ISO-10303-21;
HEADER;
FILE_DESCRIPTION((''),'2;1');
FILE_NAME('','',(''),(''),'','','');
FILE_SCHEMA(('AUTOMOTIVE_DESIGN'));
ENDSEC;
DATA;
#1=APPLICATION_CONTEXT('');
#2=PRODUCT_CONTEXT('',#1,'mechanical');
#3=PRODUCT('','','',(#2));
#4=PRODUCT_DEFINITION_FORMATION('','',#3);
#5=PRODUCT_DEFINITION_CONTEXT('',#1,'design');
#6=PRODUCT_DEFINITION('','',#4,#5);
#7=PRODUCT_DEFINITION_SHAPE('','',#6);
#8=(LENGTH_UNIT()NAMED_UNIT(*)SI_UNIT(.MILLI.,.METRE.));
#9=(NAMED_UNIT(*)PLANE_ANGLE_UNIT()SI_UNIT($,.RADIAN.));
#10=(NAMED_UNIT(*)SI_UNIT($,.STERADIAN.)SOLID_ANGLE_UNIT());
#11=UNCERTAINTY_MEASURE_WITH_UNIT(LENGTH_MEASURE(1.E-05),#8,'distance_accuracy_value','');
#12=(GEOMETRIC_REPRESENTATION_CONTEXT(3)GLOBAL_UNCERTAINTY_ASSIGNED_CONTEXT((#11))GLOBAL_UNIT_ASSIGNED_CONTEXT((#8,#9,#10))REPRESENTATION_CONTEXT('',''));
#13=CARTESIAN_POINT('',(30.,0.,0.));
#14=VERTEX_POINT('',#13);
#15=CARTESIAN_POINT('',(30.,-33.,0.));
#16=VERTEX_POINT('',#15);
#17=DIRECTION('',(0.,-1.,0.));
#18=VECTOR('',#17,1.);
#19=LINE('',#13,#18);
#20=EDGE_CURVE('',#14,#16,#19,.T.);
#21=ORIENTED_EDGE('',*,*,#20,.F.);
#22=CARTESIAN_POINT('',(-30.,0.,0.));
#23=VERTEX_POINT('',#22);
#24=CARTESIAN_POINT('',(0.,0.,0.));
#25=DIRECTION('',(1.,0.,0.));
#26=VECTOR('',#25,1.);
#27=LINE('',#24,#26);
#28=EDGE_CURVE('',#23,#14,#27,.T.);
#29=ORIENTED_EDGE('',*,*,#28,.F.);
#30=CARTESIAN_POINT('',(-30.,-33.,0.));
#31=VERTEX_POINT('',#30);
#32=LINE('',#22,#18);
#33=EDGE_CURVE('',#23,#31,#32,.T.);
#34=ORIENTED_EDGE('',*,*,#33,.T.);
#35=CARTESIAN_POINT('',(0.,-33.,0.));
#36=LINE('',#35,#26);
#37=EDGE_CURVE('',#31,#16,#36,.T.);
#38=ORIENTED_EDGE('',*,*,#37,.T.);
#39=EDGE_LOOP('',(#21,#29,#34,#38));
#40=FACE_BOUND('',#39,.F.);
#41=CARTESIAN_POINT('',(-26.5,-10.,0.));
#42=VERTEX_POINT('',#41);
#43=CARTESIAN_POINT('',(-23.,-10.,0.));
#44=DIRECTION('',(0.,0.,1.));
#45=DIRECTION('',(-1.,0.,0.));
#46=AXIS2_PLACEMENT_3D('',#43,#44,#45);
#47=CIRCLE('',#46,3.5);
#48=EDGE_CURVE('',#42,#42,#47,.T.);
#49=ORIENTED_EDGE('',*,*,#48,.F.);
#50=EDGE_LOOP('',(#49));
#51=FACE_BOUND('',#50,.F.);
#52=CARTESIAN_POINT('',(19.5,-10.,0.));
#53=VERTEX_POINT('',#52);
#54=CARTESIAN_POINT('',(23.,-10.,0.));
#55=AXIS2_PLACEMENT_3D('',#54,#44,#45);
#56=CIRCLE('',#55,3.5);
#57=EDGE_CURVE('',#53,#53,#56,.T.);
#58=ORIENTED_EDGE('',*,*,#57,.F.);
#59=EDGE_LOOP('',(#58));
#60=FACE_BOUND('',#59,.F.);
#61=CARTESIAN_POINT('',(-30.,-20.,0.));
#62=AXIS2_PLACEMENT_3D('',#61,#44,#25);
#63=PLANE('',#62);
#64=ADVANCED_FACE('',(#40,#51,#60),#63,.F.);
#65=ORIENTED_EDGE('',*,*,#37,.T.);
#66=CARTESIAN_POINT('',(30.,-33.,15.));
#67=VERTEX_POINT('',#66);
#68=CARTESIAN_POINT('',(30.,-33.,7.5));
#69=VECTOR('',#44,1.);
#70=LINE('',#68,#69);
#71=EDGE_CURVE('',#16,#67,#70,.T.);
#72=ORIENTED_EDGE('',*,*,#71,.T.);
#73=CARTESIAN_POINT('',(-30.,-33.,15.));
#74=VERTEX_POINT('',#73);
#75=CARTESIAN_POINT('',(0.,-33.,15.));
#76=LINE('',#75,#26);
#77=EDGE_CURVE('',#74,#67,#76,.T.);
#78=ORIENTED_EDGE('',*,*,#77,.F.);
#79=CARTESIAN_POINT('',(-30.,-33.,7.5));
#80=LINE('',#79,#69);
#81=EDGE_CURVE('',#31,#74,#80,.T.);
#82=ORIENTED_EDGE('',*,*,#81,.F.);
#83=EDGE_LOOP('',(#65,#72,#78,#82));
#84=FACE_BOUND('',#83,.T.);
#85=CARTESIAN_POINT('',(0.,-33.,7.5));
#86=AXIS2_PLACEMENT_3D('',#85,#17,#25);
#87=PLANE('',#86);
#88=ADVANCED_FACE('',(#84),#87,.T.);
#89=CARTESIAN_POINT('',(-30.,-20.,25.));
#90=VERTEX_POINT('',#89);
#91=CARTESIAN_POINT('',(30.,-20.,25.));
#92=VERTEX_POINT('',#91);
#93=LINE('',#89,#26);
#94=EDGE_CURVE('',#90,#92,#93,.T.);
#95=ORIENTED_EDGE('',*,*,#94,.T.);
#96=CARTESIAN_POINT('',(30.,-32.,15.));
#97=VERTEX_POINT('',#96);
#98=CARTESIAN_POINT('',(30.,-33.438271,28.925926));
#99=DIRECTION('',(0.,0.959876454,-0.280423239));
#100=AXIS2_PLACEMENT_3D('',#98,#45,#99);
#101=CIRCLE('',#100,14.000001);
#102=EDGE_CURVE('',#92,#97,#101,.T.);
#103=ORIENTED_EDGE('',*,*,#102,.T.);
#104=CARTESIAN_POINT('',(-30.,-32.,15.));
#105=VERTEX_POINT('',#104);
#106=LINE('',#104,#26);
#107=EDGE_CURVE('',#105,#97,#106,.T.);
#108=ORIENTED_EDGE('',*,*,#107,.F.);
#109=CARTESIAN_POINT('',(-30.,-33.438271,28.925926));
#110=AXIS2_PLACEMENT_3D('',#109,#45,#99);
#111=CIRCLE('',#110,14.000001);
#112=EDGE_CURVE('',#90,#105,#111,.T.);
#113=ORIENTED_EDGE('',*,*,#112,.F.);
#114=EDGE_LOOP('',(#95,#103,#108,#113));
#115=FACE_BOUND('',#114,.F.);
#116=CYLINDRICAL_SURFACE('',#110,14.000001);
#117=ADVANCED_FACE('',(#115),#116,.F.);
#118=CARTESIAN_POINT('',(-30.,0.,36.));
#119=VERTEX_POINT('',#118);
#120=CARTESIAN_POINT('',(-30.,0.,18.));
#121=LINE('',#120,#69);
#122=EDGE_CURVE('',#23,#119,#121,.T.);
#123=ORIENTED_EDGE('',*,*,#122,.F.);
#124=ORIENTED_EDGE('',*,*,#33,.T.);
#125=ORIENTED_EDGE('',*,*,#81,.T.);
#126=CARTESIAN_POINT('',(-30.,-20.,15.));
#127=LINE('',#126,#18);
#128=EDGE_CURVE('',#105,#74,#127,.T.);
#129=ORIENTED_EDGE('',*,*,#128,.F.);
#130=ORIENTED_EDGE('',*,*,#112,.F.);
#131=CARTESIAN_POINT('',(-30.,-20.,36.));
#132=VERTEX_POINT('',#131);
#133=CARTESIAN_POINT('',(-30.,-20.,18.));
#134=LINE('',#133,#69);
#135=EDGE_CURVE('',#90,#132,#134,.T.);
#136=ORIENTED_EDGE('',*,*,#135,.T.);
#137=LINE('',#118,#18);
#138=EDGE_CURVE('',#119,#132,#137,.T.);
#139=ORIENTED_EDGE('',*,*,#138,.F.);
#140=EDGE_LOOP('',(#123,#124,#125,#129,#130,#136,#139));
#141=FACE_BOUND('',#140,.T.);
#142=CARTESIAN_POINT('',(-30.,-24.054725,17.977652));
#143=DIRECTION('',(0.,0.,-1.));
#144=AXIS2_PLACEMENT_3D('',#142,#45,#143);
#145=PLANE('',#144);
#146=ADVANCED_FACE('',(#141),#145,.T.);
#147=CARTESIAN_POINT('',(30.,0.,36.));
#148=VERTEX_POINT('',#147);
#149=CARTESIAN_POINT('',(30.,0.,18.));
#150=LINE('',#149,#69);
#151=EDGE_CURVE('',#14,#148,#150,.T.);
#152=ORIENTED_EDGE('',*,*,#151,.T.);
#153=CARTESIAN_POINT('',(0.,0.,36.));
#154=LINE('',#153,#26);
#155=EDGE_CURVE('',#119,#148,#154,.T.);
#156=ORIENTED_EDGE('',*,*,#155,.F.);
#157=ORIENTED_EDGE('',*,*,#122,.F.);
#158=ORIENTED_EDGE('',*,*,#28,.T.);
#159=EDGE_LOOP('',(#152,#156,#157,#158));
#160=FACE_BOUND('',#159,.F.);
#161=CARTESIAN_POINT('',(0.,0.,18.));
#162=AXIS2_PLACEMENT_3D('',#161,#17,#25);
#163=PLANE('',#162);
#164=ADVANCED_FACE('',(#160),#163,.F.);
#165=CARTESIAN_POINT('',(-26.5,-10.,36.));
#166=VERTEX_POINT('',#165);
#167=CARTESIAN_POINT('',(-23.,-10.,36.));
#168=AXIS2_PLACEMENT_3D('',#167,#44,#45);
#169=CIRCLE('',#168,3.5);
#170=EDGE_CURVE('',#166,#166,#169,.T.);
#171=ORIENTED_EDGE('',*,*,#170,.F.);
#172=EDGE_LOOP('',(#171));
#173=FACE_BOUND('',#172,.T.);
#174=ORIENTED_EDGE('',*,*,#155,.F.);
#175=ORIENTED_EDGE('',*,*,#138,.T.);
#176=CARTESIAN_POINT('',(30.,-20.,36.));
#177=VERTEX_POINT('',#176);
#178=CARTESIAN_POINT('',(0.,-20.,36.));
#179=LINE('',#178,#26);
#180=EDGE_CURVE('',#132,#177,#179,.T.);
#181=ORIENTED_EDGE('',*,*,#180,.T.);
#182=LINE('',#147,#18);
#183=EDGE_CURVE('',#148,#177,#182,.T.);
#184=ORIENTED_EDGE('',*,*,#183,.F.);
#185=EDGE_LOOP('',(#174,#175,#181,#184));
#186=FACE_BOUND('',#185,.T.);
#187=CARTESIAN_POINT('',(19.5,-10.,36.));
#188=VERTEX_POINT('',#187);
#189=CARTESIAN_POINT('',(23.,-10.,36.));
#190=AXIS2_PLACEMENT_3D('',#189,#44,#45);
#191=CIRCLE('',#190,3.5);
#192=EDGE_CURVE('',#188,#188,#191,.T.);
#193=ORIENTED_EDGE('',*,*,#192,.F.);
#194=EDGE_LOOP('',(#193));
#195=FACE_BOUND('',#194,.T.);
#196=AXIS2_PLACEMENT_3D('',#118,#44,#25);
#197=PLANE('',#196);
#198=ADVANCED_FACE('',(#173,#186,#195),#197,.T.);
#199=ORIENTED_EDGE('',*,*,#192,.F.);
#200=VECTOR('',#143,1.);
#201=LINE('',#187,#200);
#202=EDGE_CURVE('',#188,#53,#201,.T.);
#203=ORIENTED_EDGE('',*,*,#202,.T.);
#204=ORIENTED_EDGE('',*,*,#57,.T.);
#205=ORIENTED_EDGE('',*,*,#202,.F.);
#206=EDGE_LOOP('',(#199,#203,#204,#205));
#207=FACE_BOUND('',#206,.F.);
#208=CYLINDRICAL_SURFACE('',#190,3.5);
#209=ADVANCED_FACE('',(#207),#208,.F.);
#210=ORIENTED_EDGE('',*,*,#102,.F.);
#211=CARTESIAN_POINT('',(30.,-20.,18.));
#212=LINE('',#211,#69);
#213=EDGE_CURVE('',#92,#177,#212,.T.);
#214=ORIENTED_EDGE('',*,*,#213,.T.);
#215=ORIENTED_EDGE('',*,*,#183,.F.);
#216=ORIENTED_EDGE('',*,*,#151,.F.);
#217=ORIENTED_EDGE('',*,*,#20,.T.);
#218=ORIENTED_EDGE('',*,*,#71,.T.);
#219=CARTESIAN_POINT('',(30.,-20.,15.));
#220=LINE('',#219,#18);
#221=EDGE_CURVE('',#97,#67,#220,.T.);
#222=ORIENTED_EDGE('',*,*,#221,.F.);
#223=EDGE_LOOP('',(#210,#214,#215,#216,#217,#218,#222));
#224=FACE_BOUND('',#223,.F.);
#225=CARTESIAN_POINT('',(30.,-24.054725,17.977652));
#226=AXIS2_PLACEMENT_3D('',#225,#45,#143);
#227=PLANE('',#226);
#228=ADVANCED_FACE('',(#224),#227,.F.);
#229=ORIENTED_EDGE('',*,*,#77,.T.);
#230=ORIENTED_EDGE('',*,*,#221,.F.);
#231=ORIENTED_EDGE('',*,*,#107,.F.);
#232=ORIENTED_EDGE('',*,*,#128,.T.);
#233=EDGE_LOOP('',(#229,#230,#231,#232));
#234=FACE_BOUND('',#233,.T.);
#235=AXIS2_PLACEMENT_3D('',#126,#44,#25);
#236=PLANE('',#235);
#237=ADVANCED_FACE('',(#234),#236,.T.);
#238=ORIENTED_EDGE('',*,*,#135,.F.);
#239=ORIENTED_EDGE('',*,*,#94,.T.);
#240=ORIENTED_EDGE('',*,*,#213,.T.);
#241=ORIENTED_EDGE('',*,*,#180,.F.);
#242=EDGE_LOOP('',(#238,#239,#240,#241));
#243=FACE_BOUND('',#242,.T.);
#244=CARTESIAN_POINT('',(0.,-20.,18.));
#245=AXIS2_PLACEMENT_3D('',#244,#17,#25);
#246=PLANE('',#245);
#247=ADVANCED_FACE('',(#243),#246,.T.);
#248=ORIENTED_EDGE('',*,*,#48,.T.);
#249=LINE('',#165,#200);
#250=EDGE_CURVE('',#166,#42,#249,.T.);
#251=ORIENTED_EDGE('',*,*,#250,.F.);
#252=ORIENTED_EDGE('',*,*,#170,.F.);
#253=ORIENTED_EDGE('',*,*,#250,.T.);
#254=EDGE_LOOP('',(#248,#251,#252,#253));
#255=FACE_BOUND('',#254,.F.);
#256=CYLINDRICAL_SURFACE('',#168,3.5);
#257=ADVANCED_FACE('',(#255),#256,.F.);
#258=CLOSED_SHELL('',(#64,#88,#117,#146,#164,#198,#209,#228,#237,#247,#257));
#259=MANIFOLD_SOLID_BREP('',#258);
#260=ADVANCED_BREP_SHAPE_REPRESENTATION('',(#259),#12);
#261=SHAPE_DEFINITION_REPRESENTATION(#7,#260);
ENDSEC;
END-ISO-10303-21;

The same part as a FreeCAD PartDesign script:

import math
import FreeCAD as App
import Part
import Sketcher
from FreeCAD import Vector
Q = App.Units.Quantity

doc = App.newDocument("Part")
body = doc.addObject("PartDesign::Body", "Body")

sketch1 = doc.addObject("Sketcher::SketchObject", "Sketch")
body.addObject(sketch1)
sketch1.AttachmentSupport = (doc.XZ_Plane, [""])
sketch1.MapMode = "FlatFace"
sketch1.addGeometry(Part.LineSegment(Vector(-30, 36, 0), Vector(-30, 0, 0)), False)
sketch1.addGeometry(Part.LineSegment(Vector(-30, 0, 0), Vector(30, 0, 0)), False)
sketch1.addGeometry(Part.LineSegment(Vector(30, 0, 0), Vector(30, 36, 0)), False)
sketch1.addGeometry(Part.LineSegment(Vector(30, 36, 0), Vector(-30, 36, 0)), False)
sketch1.addConstraint(Sketcher.Constraint("Coincident", 0, 2, 1, 1))
sketch1.addConstraint(Sketcher.Constraint("Coincident", 1, 2, 2, 1))
sketch1.addConstraint(Sketcher.Constraint("Coincident", 2, 2, 3, 1))
sketch1.addConstraint(Sketcher.Constraint("Coincident", 3, 2, 0, 1))
sketch1.addConstraint(Sketcher.Constraint("Vertical", 0))
sketch1.addConstraint(Sketcher.Constraint("Horizontal", 1))
sketch1.addConstraint(Sketcher.Constraint("Vertical", 2))
sketch1.addConstraint(Sketcher.Constraint("Horizontal", 3))
sketch1.addConstraint(Sketcher.Constraint("Symmetric", 0, 2, 1, 2, -1, 1))
sketch1.addConstraint(Sketcher.Constraint("DistanceX", 1, 1, 1, 2, Q("60 mm")))
sketch1.addConstraint(Sketcher.Constraint("DistanceY", 0, 2, 0, 1, Q("36 mm")))
pad1 = doc.addObject("PartDesign::Pad", "Pad")
body.addObject(pad1)
pad1.Profile = sketch1
pad1.Length = 20

sketch2 = doc.addObject("Sketcher::SketchObject", "Sketch001")
body.addObject(sketch2)
sketch2.AttachmentSupport = (doc.XY_Plane, [""])
sketch2.MapMode = "FlatFace"
sketch2.AttachmentOffset = App.Placement(Vector(0, 0, 36), App.Rotation())
sketch2.addGeometry(Part.Circle(Vector(23, -10, 0), Vector(0, 0, 1), 3.5), False)
sketch2.addGeometry(Part.Circle(Vector(-23, -10, 0), Vector(0, 0, 1), 3.5), False)
sketch2.addConstraint(Sketcher.Constraint("Equal", 0, 1))
sketch2.addConstraint(Sketcher.Constraint("Symmetric", 0, 3, 1, 3, -2))
sketch2.addConstraint(Sketcher.Constraint("Diameter", 0, Q("7 mm")))
sketch2.addConstraint(Sketcher.Constraint("DistanceX", -1, 1, 0, 3, Q("23 mm")))
sketch2.addConstraint(Sketcher.Constraint("DistanceY", 0, 3, -1, 1, Q("10 mm")))
pocket1 = doc.addObject("PartDesign::Pocket", "Pocket")
body.addObject(pocket1)
pocket1.Profile = sketch2
pocket1.Type = "ThroughAll"

sketch3 = doc.addObject("Sketcher::SketchObject", "Sketch002")
body.addObject(sketch3)
sketch3.AttachmentSupport = (doc.XZ_Plane, [""])
sketch3.MapMode = "FlatFace"
sketch3.AttachmentOffset = App.Placement(Vector(0, 0, 20), App.Rotation())
sketch3.addGeometry(Part.LineSegment(Vector(-30, 15, 0), Vector(-30, 0, 0)), False)
sketch3.addGeometry(Part.LineSegment(Vector(-30, 0, 0), Vector(30, 0, 0)), False)
sketch3.addGeometry(Part.LineSegment(Vector(30, 0, 0), Vector(30, 15, 0)), False)
sketch3.addGeometry(Part.LineSegment(Vector(30, 15, 0), Vector(-30, 15, 0)), False)
sketch3.addConstraint(Sketcher.Constraint("Coincident", 0, 2, 1, 1))
sketch3.addConstraint(Sketcher.Constraint("Coincident", 1, 2, 2, 1))
sketch3.addConstraint(Sketcher.Constraint("Coincident", 2, 2, 3, 1))
sketch3.addConstraint(Sketcher.Constraint("Coincident", 3, 2, 0, 1))
sketch3.addConstraint(Sketcher.Constraint("Vertical", 0))
sketch3.addConstraint(Sketcher.Constraint("Horizontal", 1))
sketch3.addConstraint(Sketcher.Constraint("Vertical", 2))
sketch3.addConstraint(Sketcher.Constraint("Horizontal", 3))
sketch3.addConstraint(Sketcher.Constraint("Symmetric", 0, 2, 1, 2, -1, 1))
sketch3.addConstraint(Sketcher.Constraint("DistanceX", 1, 1, 1, 2, Q("60 mm")))
sketch3.addConstraint(Sketcher.Constraint("DistanceY", 0, 2, 0, 1, Q("15 mm")))
pad2 = doc.addObject("PartDesign::Pad", "Pad001")
body.addObject(pad2)
pad2.Profile = sketch3
pad2.Length = 13

sketch4 = doc.addObject("Sketcher::SketchObject", "Sketch003")
body.addObject(sketch4)
sketch4.AttachmentSupport = (doc.YZ_Plane, [""])
sketch4.MapMode = "FlatFace"
sketch4.AttachmentOffset = App.Placement(Vector(0, 0, -30), App.Rotation())
sketch4.addGeometry(Part.LineSegment(Vector(-20, 25, 0), Vector(-20, 15, 0)), False)
sketch4.addGeometry(Part.LineSegment(Vector(-20, 15, 0), Vector(-32, 15, 0)), False)
sketch4.addGeometry(Part.ArcOfCircle(Part.Circle(Vector(-33, 29, 0), Vector(0, 0, 1), 14), math.radians(-84), math.radians(-16)), False)
sketch4.addConstraint(Sketcher.Constraint("Coincident", 0, 2, 1, 1))
sketch4.addConstraint(Sketcher.Constraint("Coincident", 1, 2, 2, 1))
sketch4.addConstraint(Sketcher.Constraint("Coincident", 2, 2, 0, 1))
sketch4.addConstraint(Sketcher.Constraint("Vertical", 0))
sketch4.addConstraint(Sketcher.Constraint("Horizontal", 1))
sketch4.addConstraint(Sketcher.Constraint("Radius", 2, Q("14.000001 mm")))
sketch4.addConstraint(Sketcher.Constraint("DistanceX", 1, 2, 1, 1, Q("12 mm")))
sketch4.addConstraint(Sketcher.Constraint("DistanceY", 0, 2, 0, 1, Q("10 mm")))
sketch4.addConstraint(Sketcher.Constraint("DistanceX", 0, 2, -1, 1, Q("20 mm")))
sketch4.addConstraint(Sketcher.Constraint("DistanceY", -1, 1, 0, 2, Q("15 mm")))
pad3 = doc.addObject("PartDesign::Pad", "Pad002")
body.addObject(pad3)
pad3.Profile = sketch4
pad3.Length = 60

doc.recompute()
